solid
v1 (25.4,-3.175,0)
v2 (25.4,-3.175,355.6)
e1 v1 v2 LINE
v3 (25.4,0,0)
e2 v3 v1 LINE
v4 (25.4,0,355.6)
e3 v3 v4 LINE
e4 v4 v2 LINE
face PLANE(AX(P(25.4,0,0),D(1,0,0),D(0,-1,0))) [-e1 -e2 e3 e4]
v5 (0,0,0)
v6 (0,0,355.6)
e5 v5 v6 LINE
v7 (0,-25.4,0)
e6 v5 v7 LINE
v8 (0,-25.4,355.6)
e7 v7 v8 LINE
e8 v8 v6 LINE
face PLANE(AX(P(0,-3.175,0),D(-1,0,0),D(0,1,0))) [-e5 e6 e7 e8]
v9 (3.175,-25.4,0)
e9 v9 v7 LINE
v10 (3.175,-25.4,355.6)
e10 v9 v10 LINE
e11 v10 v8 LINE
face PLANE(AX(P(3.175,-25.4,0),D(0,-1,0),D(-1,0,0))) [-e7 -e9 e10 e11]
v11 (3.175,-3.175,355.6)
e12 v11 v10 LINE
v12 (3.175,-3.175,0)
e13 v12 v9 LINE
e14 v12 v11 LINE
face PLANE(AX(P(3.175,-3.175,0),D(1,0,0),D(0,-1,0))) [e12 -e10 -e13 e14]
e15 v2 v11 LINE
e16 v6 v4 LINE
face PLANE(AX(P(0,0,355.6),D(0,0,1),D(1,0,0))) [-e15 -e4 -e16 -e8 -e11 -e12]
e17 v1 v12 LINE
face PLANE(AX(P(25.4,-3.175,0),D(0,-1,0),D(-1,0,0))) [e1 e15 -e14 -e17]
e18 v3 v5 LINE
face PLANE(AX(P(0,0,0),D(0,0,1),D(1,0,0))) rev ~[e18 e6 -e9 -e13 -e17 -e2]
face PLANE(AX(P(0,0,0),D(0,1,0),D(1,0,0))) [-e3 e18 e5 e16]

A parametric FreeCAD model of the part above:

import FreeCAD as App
import Part
import Sketcher
Q = App.Units.Quantity

doc = App.newDocument("Part")
body = doc.addObject("PartDesign::Body", "Body")

sketch1 = body.newObject("Sketcher::SketchObject", "Sketch")
sketch1.AttachmentSupport = (doc.getObject("XY_Plane"), [""])
sketch1.MapMode = "FlatFace"
sketch1.addGeometry([
    Part.LineSegment(App.Vector(0, 0, 0), App.Vector(0, -25.4, 0)),
    Part.LineSegment(App.Vector(0, -25.4, 0), App.Vector(3.2, -25.4, 0)),
    Part.LineSegment(App.Vector(3.2, -25.4, 0), App.Vector(3.2, -3.2, 0)),
    Part.LineSegment(App.Vector(3.2, -3.2, 0), App.Vector(25.4, -3.2, 0)),
    Part.LineSegment(App.Vector(25.4, -3.2, 0), App.Vector(25.4, 0, 0)),
    Part.LineSegment(App.Vector(25.4, 0, 0), App.Vector(0, 0, 0)),
], False)
sketch1.addConstraint([
    Sketcher.Constraint("Coincident", 0, 2, 1, 1),
    Sketcher.Constraint("Coincident", 1, 2, 2, 1),
    Sketcher.Constraint("Coincident", 2, 2, 3, 1),
    Sketcher.Constraint("Coincident", 3, 2, 4, 1),
    Sketcher.Constraint("Coincident", 4, 2, 5, 1),
    Sketcher.Constraint("Coincident", 5, 2, 0, 1),
    Sketcher.Constraint("Vertical", 0),
    Sketcher.Constraint("Horizontal", 1),
    Sketcher.Constraint("Vertical", 2),
    Sketcher.Constraint("Horizontal", 3),
    Sketcher.Constraint("Vertical", 4),
    Sketcher.Constraint("Horizontal", 5),
    Sketcher.Constraint("Coincident", 5, 2, -1, 1),
    Sketcher.Constraint("Equal", 5, 0),
    Sketcher.Constraint("Equal", 3, 2),
    Sketcher.Constraint("DistanceX", 5, 2, 5, 1, Q("1 in")),
    Sketcher.Constraint("DistanceX", 1, 1, 1, 2, Q("0.125 in")),
])
pad1 = body.newObject("PartDesign::Pad", "Pad")
pad1.Profile = sketch1
pad1.Length = Q("14 in")

doc.recompute()
